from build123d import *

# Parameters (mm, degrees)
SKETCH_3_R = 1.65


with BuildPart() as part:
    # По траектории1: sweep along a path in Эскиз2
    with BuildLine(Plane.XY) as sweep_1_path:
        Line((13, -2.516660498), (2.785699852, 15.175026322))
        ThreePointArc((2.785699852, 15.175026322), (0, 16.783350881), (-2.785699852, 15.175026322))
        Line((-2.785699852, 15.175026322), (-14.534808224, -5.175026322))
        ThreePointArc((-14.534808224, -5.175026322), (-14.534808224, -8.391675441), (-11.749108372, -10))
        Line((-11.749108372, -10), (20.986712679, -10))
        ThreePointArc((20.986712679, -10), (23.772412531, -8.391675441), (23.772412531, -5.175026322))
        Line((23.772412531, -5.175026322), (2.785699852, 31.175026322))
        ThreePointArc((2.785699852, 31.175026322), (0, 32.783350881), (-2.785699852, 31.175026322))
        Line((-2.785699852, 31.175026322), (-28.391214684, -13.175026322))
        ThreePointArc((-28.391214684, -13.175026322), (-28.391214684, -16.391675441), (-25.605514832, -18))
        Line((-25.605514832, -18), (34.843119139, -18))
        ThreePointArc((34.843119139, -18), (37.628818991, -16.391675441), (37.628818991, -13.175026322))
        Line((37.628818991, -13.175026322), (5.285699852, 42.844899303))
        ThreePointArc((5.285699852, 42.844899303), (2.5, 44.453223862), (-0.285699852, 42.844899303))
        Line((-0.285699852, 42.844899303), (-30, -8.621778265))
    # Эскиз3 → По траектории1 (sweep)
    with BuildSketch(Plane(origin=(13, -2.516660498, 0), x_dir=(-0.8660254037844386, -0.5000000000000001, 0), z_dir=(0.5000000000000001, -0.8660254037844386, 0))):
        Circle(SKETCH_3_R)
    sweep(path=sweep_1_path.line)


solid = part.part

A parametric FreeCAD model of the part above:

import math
import FreeCAD as App
import Part
import Sketcher

V = App.Vector
Q = App.Units.Quantity

doc = App.newDocument("Part")
params = doc.addObject("Spreadsheet::Sheet", "Params")
for row, (alias, value) in enumerate([
    ("sketch1_diameter", "3.3 mm"),
], start=1):
    params.set(f"A{row}", alias)
    params.set(f"B{row}", "=" + value)
    params.setAlias(f"B{row}", alias)

body = doc.addObject("PartDesign::Body", "Body")

sketch1 = body.newObject("Sketcher::SketchObject", "Sketch")
sketch1.Placement = App.Placement(V(13, -2.51666, 0), App.Rotation(V(-0.866025404, -0.5, 0), V(0, 0, -1), V(0.5, -0.866025404, 0), "ZXY"))
sketch1.addGeometry(Part.Circle(V(0, 0, 0), V(0, 0, 1), 1.6), False)
sketch1.addConstraint(Sketcher.Constraint("Coincident", 0, 3, -1, 1))
sketch1.addConstraint(Sketcher.Constraint("Diameter", 0, 3.3))
sketch1.setExpression("Constraints[1]", "Params.sketch1_diameter")

sketch2 = body.newObject("Sketcher::SketchObject", "Sketch001")
sketch2.AttachmentSupport = (doc.getObject("XY_Plane"), [""])
sketch2.MapMode = "FlatFace"
sketch2.addGeometry(Part.LineSegment(V(13, -2.5, 0), V(2.8, 15.2, 0)), False)
sketch2.addGeometry(Part.ArcOfCircle(Part.Circle(V(0, 13.6, 0), V(0, 0, 1), 3.2), math.radians(30), math.radians(150)), False)
sketch2.addGeometry(Part.LineSegment(V(-2.8, 15.2, 0), V(-14.5, -5.2, 0)), False)
sketch2.addGeometry(Part.ArcOfCircle(Part.Circle(V(-11.7, -6.8, 0), V(0, 0, 1), 3.2), math.radians(150), math.radians(270)), False)
sketch2.addGeometry(Part.LineSegment(V(-11.7, -10, 0), V(21, -10, 0)), False)
sketch2.addGeometry(Part.ArcOfCircle(Part.Circle(V(21, -6.8, 0), V(0, 0, 1), 3.2), math.radians(-90), math.radians(30)), False)
sketch2.addGeometry(Part.LineSegment(V(23.8, -5.2, 0), V(2.8, 31.2, 0)), False)
sketch2.addGeometry(Part.ArcOfCircle(Part.Circle(V(0, 29.6, 0), V(0, 0, 1), 3.2), math.radians(30), math.radians(150)), False)
sketch2.addGeometry(Part.LineSegment(V(-2.8, 31.2, 0), V(-28.4, -13.2, 0)), False)
sketch2.addGeometry(Part.ArcOfCircle(Part.Circle(V(-25.6, -14.8, 0), V(0, 0, 1), 3.2), math.radians(150), math.radians(270)), False)
sketch2.addGeometry(Part.LineSegment(V(-25.6, -18, 0), V(34.8, -18, 0)), False)
sketch2.addGeometry(Part.ArcOfCircle(Part.Circle(V(34.8, -14.8, 0), V(0, 0, 1), 3.2), math.radians(-90), math.radians(30)), False)
sketch2.addGeometry(Part.LineSegment(V(37.6, -13.2, 0), V(5.3, 42.8, 0)), False)
sketch2.addGeometry(Part.ArcOfCircle(Part.Circle(V(2.5, 41.2, 0), V(0, 0, 1), 3.2), math.radians(30), math.radians(150)), False)
sketch2.addGeometry(Part.LineSegment(V(-0.3, 42.8, 0), V(-30, -8.6, 0)), False)
sketch2.addConstraint(Sketcher.Constraint("Tangent", 0, 2, 1, 1))
sketch2.addConstraint(Sketcher.Constraint("Tangent", 1, 2, 2, 1))
sketch2.addConstraint(Sketcher.Constraint("Tangent", 2, 2, 3, 1))
sketch2.addConstraint(Sketcher.Constraint("Tangent", 3, 2, 4, 1))
sketch2.addConstraint(Sketcher.Constraint("Tangent", 4, 2, 5, 1))
sketch2.addConstraint(Sketcher.Constraint("Tangent", 5, 2, 6, 1))
sketch2.addConstraint(Sketcher.Constraint("Tangent", 6, 2, 7, 1))
sketch2.addConstraint(Sketcher.Constraint("Tangent", 7, 2, 8, 1))
sketch2.addConstraint(Sketcher.Constraint("Tangent", 8, 2, 9, 1))
sketch2.addConstraint(Sketcher.Constraint("Tangent", 9, 2, 10, 1))
sketch2.addConstraint(Sketcher.Constraint("Tangent", 10, 2, 11, 1))
sketch2.addConstraint(Sketcher.Constraint("Tangent", 11, 2, 12, 1))
sketch2.addConstraint(Sketcher.Constraint("Tangent", 12, 2, 13, 1))
sketch2.addConstraint(Sketcher.Constraint("Tangent", 13, 2, 14, 1))
sketch2.addConstraint(Sketcher.Constraint("Horizontal", 4))
sketch2.addConstraint(Sketcher.Constraint("Horizontal", 10))
sketch2.addConstraint(Sketcher.Constraint("Equal", 1, 3))
sketch2.addConstraint(Sketcher.Constraint("Equal", 3, 5))
sketch2.addConstraint(Sketcher.Constraint("Equal", 5, 7))
sketch2.addConstraint(Sketcher.Constraint("Equal", 7, 9))
sketch2.addConstraint(Sketcher.Constraint("Equal", 9, 11))
sketch2.addConstraint(Sketcher.Constraint("Equal", 11, 13))
sketch2.addConstraint(Sketcher.Constraint("Symmetric", 0, 2, 1, 2, -2))
sketch2.addConstraint(Sketcher.Constraint("Symmetric", 6, 2, 7, 2, -2))
sketch2.addConstraint(Sketcher.Constraint("Parallel", 0, 6))
sketch2.addConstraint(Sketcher.Constraint("Parallel", 6, 12))
sketch2.addConstraint(Sketcher.Constraint("Parallel", 8, 14))
sketch2.addConstraint(Sketcher.Constraint("Angle", 0, Q("120 deg")))
sketch2.addConstraint(Sketcher.Constraint("DistanceX", -1, 1, 0, 1, 13.0))
sketch2.addConstraint(Sketcher.Constraint("DistanceY", 3, 2, -1, 1, 10.0))
sketch2.addConstraint(Sketcher.Constraint("DistanceY", 9, 2, -1, 1, 18.0))
sketch2.addConstraint(Sketcher.Constraint("DistanceX", 14, 2, -1, 1, 30.0))
sketch2.addConstraint(Sketcher.Constraint("DistanceY", 1, 3, 7, 3, 16.0))
sketch2.addConstraint(Sketcher.Constraint("DistanceX", -1, 1, 13, 3, 2.5))
sketch2.addConstraint(Sketcher.Constraint("Radius", 1, 3.216649))
sketch2.addConstraint(Sketcher.Constraint("DistanceX", 4, 1, 4, 2, 32.735821))
sketch2.addConstraint(Sketcher.Constraint("DistanceY", -1, 1, 12, 2, 42.844899))
doc.recompute()

additivepipe = body.newObject("PartDesign::AdditivePipe", "AdditivePipe")
additivepipe.Profile = sketch1
additivepipe.Spine = (sketch2, ["Edge1", "Edge2", "Edge3", "Edge4", "Edge5", "Edge6", "Edge7", "Edge8", "Edge9", "Edge10", "Edge11", "Edge12", "Edge13", "Edge14", "Edge15"])

doc.recompute()
